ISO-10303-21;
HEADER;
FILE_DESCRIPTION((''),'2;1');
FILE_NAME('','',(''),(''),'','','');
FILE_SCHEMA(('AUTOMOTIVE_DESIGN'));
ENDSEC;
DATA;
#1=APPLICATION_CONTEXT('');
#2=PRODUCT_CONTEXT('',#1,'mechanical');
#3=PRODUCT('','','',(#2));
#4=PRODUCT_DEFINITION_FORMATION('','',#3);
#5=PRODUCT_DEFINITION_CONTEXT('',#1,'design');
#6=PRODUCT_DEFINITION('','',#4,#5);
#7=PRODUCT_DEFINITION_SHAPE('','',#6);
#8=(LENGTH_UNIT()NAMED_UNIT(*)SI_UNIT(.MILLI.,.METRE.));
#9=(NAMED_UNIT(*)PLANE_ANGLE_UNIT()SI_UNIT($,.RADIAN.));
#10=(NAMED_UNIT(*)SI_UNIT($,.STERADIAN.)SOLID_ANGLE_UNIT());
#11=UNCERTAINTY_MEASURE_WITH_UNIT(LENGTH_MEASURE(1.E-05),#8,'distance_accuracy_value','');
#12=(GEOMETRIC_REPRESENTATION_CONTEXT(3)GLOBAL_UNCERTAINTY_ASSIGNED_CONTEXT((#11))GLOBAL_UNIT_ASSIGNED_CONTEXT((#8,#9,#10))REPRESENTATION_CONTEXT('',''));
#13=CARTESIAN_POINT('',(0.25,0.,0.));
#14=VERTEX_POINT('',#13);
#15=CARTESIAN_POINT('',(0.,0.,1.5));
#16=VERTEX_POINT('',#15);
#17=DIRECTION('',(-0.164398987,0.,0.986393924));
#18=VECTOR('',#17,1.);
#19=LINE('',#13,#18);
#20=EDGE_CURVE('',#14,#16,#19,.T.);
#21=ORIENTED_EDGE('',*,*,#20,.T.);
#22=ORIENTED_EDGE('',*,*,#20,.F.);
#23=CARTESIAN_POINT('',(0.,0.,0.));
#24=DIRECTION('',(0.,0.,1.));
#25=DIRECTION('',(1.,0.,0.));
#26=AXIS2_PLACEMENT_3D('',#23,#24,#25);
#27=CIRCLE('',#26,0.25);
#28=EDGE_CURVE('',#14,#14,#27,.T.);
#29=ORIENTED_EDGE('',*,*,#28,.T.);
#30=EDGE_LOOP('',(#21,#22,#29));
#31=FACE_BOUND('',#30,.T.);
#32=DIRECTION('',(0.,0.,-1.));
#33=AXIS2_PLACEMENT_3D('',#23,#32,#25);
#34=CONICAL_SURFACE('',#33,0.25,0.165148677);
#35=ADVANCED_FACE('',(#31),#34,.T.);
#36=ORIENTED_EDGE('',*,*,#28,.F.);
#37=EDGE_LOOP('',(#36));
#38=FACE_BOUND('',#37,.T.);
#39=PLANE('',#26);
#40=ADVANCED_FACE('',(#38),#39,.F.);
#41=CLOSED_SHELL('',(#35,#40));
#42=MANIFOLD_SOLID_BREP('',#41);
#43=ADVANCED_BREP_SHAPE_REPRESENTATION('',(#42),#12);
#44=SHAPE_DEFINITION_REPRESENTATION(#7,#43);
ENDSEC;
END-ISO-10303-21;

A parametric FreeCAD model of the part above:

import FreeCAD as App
import Part
import Sketcher

V = App.Vector

doc = App.newDocument("Part")
body = doc.addObject("PartDesign::Body", "Body")

# Sketch on XZ plane
sketch1 = doc.addObject("Sketcher::SketchObject", "Sketch")
body.addObject(sketch1)
sketch1.AttachmentSupport = (doc.XZ_Plane, [""])
sketch1.MapMode = "FlatFace"
sketch1.addGeometry(Part.LineSegment(V(0, 0, 0), V(0.25, 0, 0)), False)
sketch1.addGeometry(Part.LineSegment(V(0.25, 0, 0), V(0, 1.5, 0)), False)
sketch1.addGeometry(Part.LineSegment(V(0, 1.5, 0), V(0, 0, 0)), False)
sketch1.addConstraint(Sketcher.Constraint("Coincident", 0, 2, 1, 1))
sketch1.addConstraint(Sketcher.Constraint("Coincident", 1, 2, 2, 1))
sketch1.addConstraint(Sketcher.Constraint("Coincident", 2, 2, 0, 1))
sketch1.addConstraint(Sketcher.Constraint("Horizontal", 0))
sketch1.addConstraint(Sketcher.Constraint("Vertical", 2))
sketch1.addConstraint(Sketcher.Constraint("Coincident", 2, 2, -1, 1))
sketch1.addConstraint(Sketcher.Constraint("DistanceY", 2, 2, 2, 1, 1.5))
sketch1.addConstraint(Sketcher.Constraint("DistanceX", 0, 1, 0, 2, 0.25))
revolution = doc.addObject("PartDesign::Revolution", "Revolution")
body.addObject(revolution)
revolution.Profile = sketch1
revolution.ReferenceAxis = (sketch1, ["V_Axis"])
revolution.Angle = 360

doc.recompute()
